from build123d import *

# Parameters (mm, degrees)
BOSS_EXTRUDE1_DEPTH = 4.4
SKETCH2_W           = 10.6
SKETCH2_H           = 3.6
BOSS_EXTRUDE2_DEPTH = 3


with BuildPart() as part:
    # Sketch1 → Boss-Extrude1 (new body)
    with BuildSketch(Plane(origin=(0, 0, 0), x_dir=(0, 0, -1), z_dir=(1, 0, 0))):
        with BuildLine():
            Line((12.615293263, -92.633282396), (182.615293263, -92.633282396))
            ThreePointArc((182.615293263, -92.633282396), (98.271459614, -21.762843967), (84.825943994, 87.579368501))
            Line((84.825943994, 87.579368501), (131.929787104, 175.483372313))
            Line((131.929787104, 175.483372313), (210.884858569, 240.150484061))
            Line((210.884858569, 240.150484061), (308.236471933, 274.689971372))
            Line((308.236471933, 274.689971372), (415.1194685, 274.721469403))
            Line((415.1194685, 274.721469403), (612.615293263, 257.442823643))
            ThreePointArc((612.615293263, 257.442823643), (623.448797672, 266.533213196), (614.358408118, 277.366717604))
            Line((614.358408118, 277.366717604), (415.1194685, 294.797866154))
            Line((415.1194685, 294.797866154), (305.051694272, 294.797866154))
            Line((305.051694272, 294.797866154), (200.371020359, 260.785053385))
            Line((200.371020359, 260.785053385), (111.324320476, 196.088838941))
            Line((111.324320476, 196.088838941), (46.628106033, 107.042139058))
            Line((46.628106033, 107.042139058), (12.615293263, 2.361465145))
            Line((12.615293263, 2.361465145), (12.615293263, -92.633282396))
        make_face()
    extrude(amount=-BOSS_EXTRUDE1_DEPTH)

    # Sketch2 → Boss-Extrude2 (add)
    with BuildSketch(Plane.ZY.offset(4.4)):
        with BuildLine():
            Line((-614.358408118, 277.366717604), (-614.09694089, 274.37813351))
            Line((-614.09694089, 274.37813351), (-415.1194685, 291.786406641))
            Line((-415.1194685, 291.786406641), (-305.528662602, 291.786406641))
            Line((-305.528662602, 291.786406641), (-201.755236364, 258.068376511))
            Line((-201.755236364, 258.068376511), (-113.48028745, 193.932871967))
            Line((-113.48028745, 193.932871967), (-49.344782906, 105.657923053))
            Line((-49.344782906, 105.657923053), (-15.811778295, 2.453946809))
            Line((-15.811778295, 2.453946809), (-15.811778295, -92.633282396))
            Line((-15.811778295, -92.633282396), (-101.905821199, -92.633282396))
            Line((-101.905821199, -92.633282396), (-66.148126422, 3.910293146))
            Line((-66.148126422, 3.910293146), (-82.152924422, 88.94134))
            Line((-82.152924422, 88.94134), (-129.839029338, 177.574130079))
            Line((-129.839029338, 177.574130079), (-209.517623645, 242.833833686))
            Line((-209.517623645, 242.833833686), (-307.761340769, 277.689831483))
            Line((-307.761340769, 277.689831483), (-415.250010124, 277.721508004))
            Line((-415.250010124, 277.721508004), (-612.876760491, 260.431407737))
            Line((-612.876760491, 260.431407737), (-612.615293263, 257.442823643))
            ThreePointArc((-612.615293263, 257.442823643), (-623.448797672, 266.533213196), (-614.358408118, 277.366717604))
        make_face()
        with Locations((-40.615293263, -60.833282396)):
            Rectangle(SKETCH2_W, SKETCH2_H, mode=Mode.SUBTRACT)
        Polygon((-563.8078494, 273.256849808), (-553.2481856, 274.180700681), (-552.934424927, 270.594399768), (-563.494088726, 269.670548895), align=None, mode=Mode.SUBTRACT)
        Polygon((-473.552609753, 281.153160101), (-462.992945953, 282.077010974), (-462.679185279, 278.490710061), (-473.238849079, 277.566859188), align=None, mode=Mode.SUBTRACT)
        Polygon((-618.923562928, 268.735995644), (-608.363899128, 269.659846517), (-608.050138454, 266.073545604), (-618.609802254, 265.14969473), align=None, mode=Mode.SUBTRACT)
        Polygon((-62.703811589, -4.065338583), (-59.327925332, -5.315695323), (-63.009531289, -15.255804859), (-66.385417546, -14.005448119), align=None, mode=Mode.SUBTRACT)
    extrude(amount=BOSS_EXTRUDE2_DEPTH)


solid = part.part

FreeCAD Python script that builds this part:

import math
import FreeCAD as App
import Part
import Sketcher

V = App.Vector
Q = App.Units.Quantity


def add_polygon(sketch, points):
    """Adds a closed chain of lines whose ends are joined by coincident constraints."""
    first, n = sketch.GeometryCount, len(points)
    for a, b in zip(points, points[1:] + points[:1]):
        sketch.addGeometry(Part.LineSegment(App.Vector(*a, 0), App.Vector(*b, 0)), False)
    for i in range(n):
        sketch.addConstraint(Sketcher.Constraint("Coincident", first + i, 2, first + (i + 1) % n, 1))

doc = App.newDocument("Part")
body = doc.addObject("PartDesign::Body", "Body")

# Sketch on YZ plane
sketch1 = body.newObject("Sketcher::SketchObject", "Sketch")
sketch1.AttachmentSupport = (doc.getObject("YZ_Plane"), [""])
sketch1.MapMode = "FlatFace"
sketch1.addGeometry([
    Part.LineSegment(V(-92.633282, -12.615293, 0), V(-92.633282, -182.615293, 0)),  # 0
    Part.ArcOfCircle(Part.Circle(V(49.996482, -230.514269, 0), V(0, 0, 1), 150.457839), math.radians(75.534905), math.radians(161.436541)),  # 1
    Part.LineSegment(V(87.579369, -84.825944, 0), V(175.483372, -131.929787, 0)),  # 2
    Part.LineSegment(V(175.483372, -131.929787, 0), V(240.150484, -210.884859, 0)),  # 3
    Part.LineSegment(V(240.150484, -210.884859, 0), V(274.689971, -308.236472, 0)),  # 4
    Part.LineSegment(V(274.689971, -308.236472, 0), V(274.721469, -415.119468, 0)),  # 5
    Part.LineSegment(V(274.721469, -415.119468, 0), V(257.442824, -612.615293, 0)),  # 6
    Part.ArcOfCircle(Part.Circle(V(267.404771, -613.486851, 0), V(0, 0, 1), 10), math.radians(175), math.radians(355)),  # 7
    Part.LineSegment(V(277.366718, -614.358408, 0), V(294.797866, -415.119468, 0)),  # 8
    Part.LineSegment(V(294.797866, -415.119468, 0), V(294.797866, -305.051694, 0)),  # 9
    Part.LineSegment(V(294.797866, -305.051694, 0), V(260.785053, -200.37102, 0)),  # 10
    Part.LineSegment(V(260.785053, -200.37102, 0), V(196.088839, -111.32432, 0)),  # 11
    Part.LineSegment(V(196.088839, -111.32432, 0), V(107.042139, -46.628106, 0)),  # 12
    Part.LineSegment(V(107.042139, -46.628106, 0), V(2.361465, -12.615293, 0)),  # 13
    Part.LineSegment(V(2.361465, -12.615293, 0), V(-92.633282, -12.615293, 0)),  # 14
], False)
sketch1.addConstraint([
    Sketcher.Constraint("Coincident", 0, 2, 1, 2),
    Sketcher.Constraint("Coincident", 1, 1, 2, 1),
    Sketcher.Constraint("Coincident", 2, 2, 3, 1),
    Sketcher.Constraint("Coincident", 3, 2, 4, 1),
    Sketcher.Constraint("Coincident", 4, 2, 5, 1),
    Sketcher.Constraint("Coincident", 5, 2, 6, 1),
    Sketcher.Constraint("Tangent", 6, 2, 7, 1),
    Sketcher.Constraint("Tangent", 7, 2, 8, 1),
    Sketcher.Constraint("Coincident", 8, 2, 9, 1),
    Sketcher.Constraint("Coincident", 9, 2, 10, 1),
    Sketcher.Constraint("Coincident", 10, 2, 11, 1),
    Sketcher.Constraint("Coincident", 11, 2, 12, 1),
    Sketcher.Constraint("Coincident", 12, 2, 13, 1),
    Sketcher.Constraint("Coincident", 13, 2, 14, 1),
    Sketcher.Constraint("Coincident", 14, 2, 0, 1),
    Sketcher.Constraint("Vertical", 0),
    Sketcher.Constraint("Vertical", 9),
    Sketcher.Constraint("Horizontal", 14),
    Sketcher.Constraint("Parallel", 6, 8),
    Sketcher.Constraint("Horizontal", 5, 2, 8, 2),
    Sketcher.Constraint("Equal", 10, 11),
    Sketcher.Constraint("Equal", 11, 12),
    Sketcher.Constraint("Equal", 12, 13),
    Sketcher.Constraint("Radius", 7, 10.0),
    Sketcher.Constraint("DistanceY", 0, 2, 0, 1, 170.0),
    Sketcher.Constraint("Angle", 6, Q("-95 deg")),
    Sketcher.Constraint("Angle", 10, Q("108 deg")),
    Sketcher.Constraint("Angle", 11, Q("126 deg")),
    Sketcher.Constraint("Angle", 12, Q("144 deg")),
    Sketcher.Constraint("Angle", 13, Q("162 deg")),
    Sketcher.Constraint("Distance", 8, 200.0),
    Sketcher.Constraint("Radius", 1, 150.457839),
    Sketcher.Constraint("Distance", 5, 106.883001),
    Sketcher.Constraint("DistanceX", 2, 2, 7, 3, 91.921398),
    Sketcher.Constraint("DistanceX", 2, 2, 4, 2, 99.206599),
    Sketcher.Constraint("DistanceY", 5, 2, 1, 3, 184.605199),
    Sketcher.Constraint("DistanceY", 10, 2, 11, 2, 89.0467),
    Sketcher.Constraint("DistanceX", 14, 2, 14, 1, 94.994748),
    Sketcher.Constraint("DistanceY", 9, 1, 9, 2, 110.067774),
    Sketcher.Constraint("DistanceX", -1, 1, 1, 3, 49.996482),
    Sketcher.Constraint("DistanceY", 1, 3, -1, 1, 230.514269),
    Sketcher.Constraint("DistanceX", -1, 1, 1, 1, 87.579369),
    Sketcher.Constraint("DistanceY", 3, 2, -1, 1, 210.884859),
    Sketcher.Constraint("DistanceY", 1, 3, 2, 2, 98.584482),
    Sketcher.Constraint("DistanceX", 2, 2, 3, 2, 64.667112),
])
pad1 = body.newObject("PartDesign::Pad", "Pad")
pad1.Profile = sketch1
pad1.Length = 4.4
pad1.Reversed = True

# Sketch on YZ plane
sketch2 = body.newObject("Sketcher::SketchObject", "Sketch001")
sketch2.AttachmentSupport = (doc.getObject("YZ_Plane"), [""])
sketch2.MapMode = "FlatFace"
sketch2.AttachmentOffset = App.Placement(V(0, 0, -4.4), App.Rotation())
sketch2.addGeometry(Part.LineSegment(V(274.378134, -614.096941, 0), V(277.366718, -614.358408, 0)), False)  # 0
sketch2.addGeometry(Part.ArcOfCircle(Part.Circle(V(267.404771, -613.486851, 0), V(0, 0, 1), 10), math.radians(175), math.radians(355)), False)  # 1
sketch2.addGeometry(Part.LineSegment(V(257.442824, -612.615293, 0), V(260.431408, -612.87676, 0)), False)  # 2
sketch2.addGeometry(Part.LineSegment(V(260.431408, -612.87676, 0), V(277.721508, -415.25001, 0)), False)  # 3
sketch2.addGeometry(Part.LineSegment(V(277.721508, -415.25001, 0), V(277.689831, -307.761341, 0)), False)  # 4
sketch2.addGeometry(Part.LineSegment(V(277.689831, -307.761341, 0), V(242.833834, -209.517624, 0)), False)  # 5
sketch2.addGeometry(Part.LineSegment(V(242.833834, -209.517624, 0), V(177.57413, -129.839029, 0)), False)  # 6
sketch2.addGeometry(Part.LineSegment(V(177.57413, -129.839029, 0), V(88.94134, -82.152924, 0)), False)  # 7
sketch2.addGeometry(Part.LineSegment(V(88.94134, -82.152924, 0), V(3.910293, -66.148126, 0)), False)  # 8
sketch2.addGeometry(Part.LineSegment(V(3.910293, -66.148126, 0), V(-92.633282, -101.905821, 0)), False)  # 9
sketch2.addGeometry(Part.LineSegment(V(-92.633282, -101.905821, 0), V(-92.633282, -15.811778, 0)), False)  # 10
sketch2.addGeometry(Part.LineSegment(V(-92.633282, -15.811778, 0), V(2.453947, -15.811778, 0)), False)  # 11
sketch2.addGeometry(Part.LineSegment(V(2.453947, -15.811778, 0), V(105.657923, -49.344783, 0)), False)  # 12
sketch2.addGeometry(Part.LineSegment(V(105.657923, -49.344783, 0), V(193.932872, -113.480287, 0)), False)  # 13
sketch2.addGeometry(Part.LineSegment(V(193.932872, -113.480287, 0), V(258.068377, -201.755236, 0)), False)  # 14
sketch2.addGeometry(Part.LineSegment(V(258.068377, -201.755236, 0), V(291.786407, -305.528663, 0)), False)  # 15
sketch2.addGeometry(Part.LineSegment(V(291.786407, -305.528663, 0), V(291.786407, -415.119468, 0)), False)  # 16
sketch2.addGeometry(Part.LineSegment(V(291.786407, -415.119468, 0), V(274.378134, -614.096941, 0)), False)  # 17
add_polygon(sketch2, [(-62.633282, -45.915293), (-59.033282, -45.915293), (-59.033282, -35.315293), (-62.633282, -35.315293)])  # lines 18-21
add_polygon(sketch2, [(-4.065339, -62.703812), (-5.315695, -59.327925), (-15.255805, -63.009531), (-14.005448, -66.385418)])  # lines 22-25
add_polygon(sketch2, [(281.15316, -473.55261), (282.077011, -462.992946), (278.49071, -462.679185), (277.566859, -473.238849)])  # lines 26-29
add_polygon(sketch2, [(273.25685, -563.807849), (274.180701, -553.248186), (270.5944, -552.934425), (269.670549, -563.494089)])  # lines 30-33
add_polygon(sketch2, [(268.735996, -618.923563), (269.659847, -608.363899), (266.073546, -608.050138), (265.149695, -618.609802)])  # lines 34-37
sketch2.addConstraint([
    Sketcher.Constraint("Coincident", 0, 2, 1, 2),
    Sketcher.Constraint("Coincident", 1, 1, 2, 1),
    Sketcher.Constraint("Coincident", 2, 2, 3, 1),
    Sketcher.Constraint("Coincident", 3, 2, 4, 1),
    Sketcher.Constraint("Coincident", 4, 2, 5, 1),
    Sketcher.Constraint("Coincident", 5, 2, 6, 1),
    Sketcher.Constraint("Coincident", 6, 2, 7, 1),
    Sketcher.Constraint("Coincident", 7, 2, 8, 1),
    Sketcher.Constraint("Coincident", 8, 2, 9, 1),
    Sketcher.Constraint("Coincident", 9, 2, 10, 1),
    Sketcher.Constraint("Coincident", 10, 2, 11, 1),
    Sketcher.Constraint("Coincident", 11, 2, 12, 1),
    Sketcher.Constraint("Coincident", 12, 2, 13, 1),
    Sketcher.Constraint("Coincident", 13, 2, 14, 1),
    Sketcher.Constraint("Coincident", 14, 2, 15, 1),
    Sketcher.Constraint("Coincident", 15, 2, 16, 1),
    Sketcher.Constraint("Coincident", 16, 2, 17, 1),
    Sketcher.Constraint("Coincident", 17, 2, 0, 1),
    Sketcher.Constraint("Vertical", 10),
    Sketcher.Constraint("Horizontal", 11),
    Sketcher.Constraint("Vertical", 16),
    Sketcher.Constraint("Horizontal", 18),
    Sketcher.Constraint("Vertical", 19),
    Sketcher.Constraint("Horizontal", 20),
    Sketcher.Constraint("Vertical", 21),
    Sketcher.Constraint("Parallel", 0, 2),
    Sketcher.Constraint("Perpendicular", 2, 3),
    Sketcher.Constraint("Parallel", 3, 17),
    Sketcher.Constraint("Perpendicular", 9, 22),
    Sketcher.Constraint("Perpendicular", 22, 23),
    Sketcher.Constraint("Perpendicular", 23, 24),
    Sketcher.Constraint("Perpendicular", 24, 25),
    Sketcher.Constraint("Parallel", 17, 26),
    Sketcher.Constraint("Perpendicular", 26, 27),
    Sketcher.Constraint("Perpendicular", 27, 28),
    Sketcher.Constraint("Perpendicular", 28, 29),
    Sketcher.Constraint("Perpendicular", 29, 30),
    Sketcher.Constraint("Perpendicular", 30, 31),
    Sketcher.Constraint("Perpendicular", 31, 32),
    Sketcher.Constraint("Perpendicular", 32, 33),
    Sketcher.Constraint("Perpendicular", 33, 34),
    Sketcher.Constraint("Perpendicular", 34, 35),
    Sketcher.Constraint("Perpendicular", 35, 36),
    Sketcher.Constraint("Perpendicular", 36, 37),
    Sketcher.Constraint("Equal", 0, 2),
    Sketcher.Constraint("Equal", 13, 14),
    Sketcher.Constraint("Equal", 14, 15),
    Sketcher.Constraint("Equal", 25, 26),
    Sketcher.Constraint("Equal", 24, 27),
    Sketcher.Constraint("Equal", 28, 30),
    Sketcher.Constraint("Equal", 29, 31),
    Sketcher.Constraint("Equal", 32, 34),
    Sketcher.Constraint("Equal", 33, 35),
    Sketcher.Constraint("Radius", 1, 10.0),
    Sketcher.Constraint("Angle", 0, Q("-5 deg")),
    Sketcher.Constraint("Angle", 12, Q("-18 deg")),
    Sketcher.Constraint("Angle", 13, Q("-36 deg")),
    Sketcher.Constraint("Angle", 14, Q("-54 deg")),
    Sketcher.Constraint("Angle", 15, Q("-72 deg")),
    Sketcher.Constraint("Distance", 0, 3.0),
    Sketcher.Constraint("DistanceX", 18, 1, 18, 2, 3.6),
    Sketcher.Constraint("DistanceY", 19, 1, 19, 2, 10.6),
    Sketcher.Constraint("DistanceX", 10, 2, 20, 2, 30.0),
    Sketcher.Constraint("Distance", 22, 3.6),
    Sketcher.Constraint("Distance", 23, 10.6),
    Sketcher.Constraint("DistanceY", 1, 3, 28, 2, 140.248002),
    Sketcher.Constraint("DistanceY", 1, 3, 33, 2, 49.679001),
    Sketcher.Constraint("DistanceX", 11, 1, 11, 2, 95.087229),
    Sketcher.Constraint("DistanceX", -1, 1, 30, 2, 274.180701),
    Sketcher.Constraint("DistanceY", 34, 2, -1, 1, 608.363899),
    Sketcher.Constraint("DistanceX", 2, 2, 3, 2, 17.2901),
    Sketcher.Constraint("DistanceX", 6, 2, 4, 2, 100.115701),
    Sketcher.Constraint("DistanceY", 5, 2, 7, 2, 127.364699),
    Sketcher.Constraint("DistanceX", 3, 2, 15, 2, 14.064899),
    Sketcher.Constraint("DistanceY", 8, 2, 22, 2, 6.820201),
    Sketcher.Constraint("DistanceX", 23, 2, 8, 2, 19.166098),
    Sketcher.Constraint("DistanceY", 29, 2, 3, 2, 58.3026),
    Sketcher.Constraint("Distance", 7, 100.64659),
    Sketcher.Constraint("Distance", 9, 102.952779),
    Sketcher.Constraint("DistanceY", 10, 1, 10, 2, 86.094043),
    Sketcher.Constraint("DistanceY", 16, 2, 16, 1, 109.590806),
    Sketcher.Constraint("DistanceX", -1, 1, 1, 3, 267.404771),
    Sketcher.Constraint("DistanceY", 1, 3, -1, 1, 613.486851),
    Sketcher.Constraint("DistanceY", 0, 2, -1, 1, 614.358408),
    Sketcher.Constraint("DistanceX", -1, 1, 4, 2, 277.689831),
    Sketcher.Constraint("DistanceY", 4, 2, -1, 1, 307.761341),
    Sketcher.Constraint("DistanceY", 6, 2, -1, 1, 129.839029),
    Sketcher.Constraint("DistanceX", -1, 1, 7, 2, 88.94134),
    Sketcher.Constraint("DistanceY", 9, 2, -1, 1, 101.905821),
    Sketcher.Constraint("DistanceX", -1, 1, 13, 2, 193.932872),
    Sketcher.Constraint("DistanceY", 23, 2, -1, 1, 63.009531),
    Sketcher.Constraint("DistanceX", -1, 1, 26, 2, 282.077011),
    Sketcher.Constraint("DistanceX", 5, 2, 1, 1, 14.60899),
    Sketcher.Constraint("DistanceY", 7, 2, 18, 2, 36.237631),
    Sketcher.Constraint("DistanceX", 34, 2, 0, 2, 7.706871),
])
pad2 = body.newObject("PartDesign::Pad", "Pad001")
pad2.Profile = sketch2
pad2.Length = 3
pad2.Reversed = True

doc.recompute()
